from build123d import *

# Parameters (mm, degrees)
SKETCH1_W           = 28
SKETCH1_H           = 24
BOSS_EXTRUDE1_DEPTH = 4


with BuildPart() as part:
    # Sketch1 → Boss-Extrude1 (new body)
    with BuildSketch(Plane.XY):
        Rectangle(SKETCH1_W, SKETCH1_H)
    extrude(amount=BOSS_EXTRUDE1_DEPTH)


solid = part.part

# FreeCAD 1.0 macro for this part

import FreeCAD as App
import Part
import Sketcher
Q = App.Units.Quantity

doc = App.newDocument("Part")
body = doc.addObject("PartDesign::Body", "Body")

sketch1 = body.newObject("Sketcher::SketchObject", "Sketch")
sketch1.AttachmentSupport = (doc.getObject("XY_Plane"), [""])
sketch1.MapMode = "FlatFace"
sketch1.addGeometry(Part.LineSegment(App.Vector(-14, 12, 0), App.Vector(-14, -12, 0)), False)
sketch1.addGeometry(Part.LineSegment(App.Vector(-14, -12, 0), App.Vector(14, -12, 0)), False)
sketch1.addGeometry(Part.LineSegment(App.Vector(14, -12, 0), App.Vector(14, 12, 0)), False)
sketch1.addGeometry(Part.LineSegment(App.Vector(14, 12, 0), App.Vector(-14, 12, 0)), False)
sketch1.addConstraint(Sketcher.Constraint("Coincident", 0, 2, 1, 1))
sketch1.addConstraint(Sketcher.Constraint("Coincident", 1, 2, 2, 1))
sketch1.addConstraint(Sketcher.Constraint("Coincident", 2, 2, 3, 1))
sketch1.addConstraint(Sketcher.Constraint("Coincident", 3, 2, 0, 1))
sketch1.addConstraint(Sketcher.Constraint("Vertical", 0))
sketch1.addConstraint(Sketcher.Constraint("Horizontal", 1))
sketch1.addConstraint(Sketcher.Constraint("Vertical", 2))
sketch1.addConstraint(Sketcher.Constraint("Horizontal", 3))
sketch1.addConstraint(Sketcher.Constraint("Symmetric", 0, 2, 2, 2, -1, 1))
sketch1.addConstraint(Sketcher.Constraint("DistanceX", 1, 1, 1, 2, Q("28 mm")))
sketch1.addConstraint(Sketcher.Constraint("DistanceY", 0, 2, 0, 1, Q("24 mm")))
pad1 = body.newObject("PartDesign::Pad", "Pad")
pad1.Profile = sketch1
pad1.Length = 4

doc.recompute()
